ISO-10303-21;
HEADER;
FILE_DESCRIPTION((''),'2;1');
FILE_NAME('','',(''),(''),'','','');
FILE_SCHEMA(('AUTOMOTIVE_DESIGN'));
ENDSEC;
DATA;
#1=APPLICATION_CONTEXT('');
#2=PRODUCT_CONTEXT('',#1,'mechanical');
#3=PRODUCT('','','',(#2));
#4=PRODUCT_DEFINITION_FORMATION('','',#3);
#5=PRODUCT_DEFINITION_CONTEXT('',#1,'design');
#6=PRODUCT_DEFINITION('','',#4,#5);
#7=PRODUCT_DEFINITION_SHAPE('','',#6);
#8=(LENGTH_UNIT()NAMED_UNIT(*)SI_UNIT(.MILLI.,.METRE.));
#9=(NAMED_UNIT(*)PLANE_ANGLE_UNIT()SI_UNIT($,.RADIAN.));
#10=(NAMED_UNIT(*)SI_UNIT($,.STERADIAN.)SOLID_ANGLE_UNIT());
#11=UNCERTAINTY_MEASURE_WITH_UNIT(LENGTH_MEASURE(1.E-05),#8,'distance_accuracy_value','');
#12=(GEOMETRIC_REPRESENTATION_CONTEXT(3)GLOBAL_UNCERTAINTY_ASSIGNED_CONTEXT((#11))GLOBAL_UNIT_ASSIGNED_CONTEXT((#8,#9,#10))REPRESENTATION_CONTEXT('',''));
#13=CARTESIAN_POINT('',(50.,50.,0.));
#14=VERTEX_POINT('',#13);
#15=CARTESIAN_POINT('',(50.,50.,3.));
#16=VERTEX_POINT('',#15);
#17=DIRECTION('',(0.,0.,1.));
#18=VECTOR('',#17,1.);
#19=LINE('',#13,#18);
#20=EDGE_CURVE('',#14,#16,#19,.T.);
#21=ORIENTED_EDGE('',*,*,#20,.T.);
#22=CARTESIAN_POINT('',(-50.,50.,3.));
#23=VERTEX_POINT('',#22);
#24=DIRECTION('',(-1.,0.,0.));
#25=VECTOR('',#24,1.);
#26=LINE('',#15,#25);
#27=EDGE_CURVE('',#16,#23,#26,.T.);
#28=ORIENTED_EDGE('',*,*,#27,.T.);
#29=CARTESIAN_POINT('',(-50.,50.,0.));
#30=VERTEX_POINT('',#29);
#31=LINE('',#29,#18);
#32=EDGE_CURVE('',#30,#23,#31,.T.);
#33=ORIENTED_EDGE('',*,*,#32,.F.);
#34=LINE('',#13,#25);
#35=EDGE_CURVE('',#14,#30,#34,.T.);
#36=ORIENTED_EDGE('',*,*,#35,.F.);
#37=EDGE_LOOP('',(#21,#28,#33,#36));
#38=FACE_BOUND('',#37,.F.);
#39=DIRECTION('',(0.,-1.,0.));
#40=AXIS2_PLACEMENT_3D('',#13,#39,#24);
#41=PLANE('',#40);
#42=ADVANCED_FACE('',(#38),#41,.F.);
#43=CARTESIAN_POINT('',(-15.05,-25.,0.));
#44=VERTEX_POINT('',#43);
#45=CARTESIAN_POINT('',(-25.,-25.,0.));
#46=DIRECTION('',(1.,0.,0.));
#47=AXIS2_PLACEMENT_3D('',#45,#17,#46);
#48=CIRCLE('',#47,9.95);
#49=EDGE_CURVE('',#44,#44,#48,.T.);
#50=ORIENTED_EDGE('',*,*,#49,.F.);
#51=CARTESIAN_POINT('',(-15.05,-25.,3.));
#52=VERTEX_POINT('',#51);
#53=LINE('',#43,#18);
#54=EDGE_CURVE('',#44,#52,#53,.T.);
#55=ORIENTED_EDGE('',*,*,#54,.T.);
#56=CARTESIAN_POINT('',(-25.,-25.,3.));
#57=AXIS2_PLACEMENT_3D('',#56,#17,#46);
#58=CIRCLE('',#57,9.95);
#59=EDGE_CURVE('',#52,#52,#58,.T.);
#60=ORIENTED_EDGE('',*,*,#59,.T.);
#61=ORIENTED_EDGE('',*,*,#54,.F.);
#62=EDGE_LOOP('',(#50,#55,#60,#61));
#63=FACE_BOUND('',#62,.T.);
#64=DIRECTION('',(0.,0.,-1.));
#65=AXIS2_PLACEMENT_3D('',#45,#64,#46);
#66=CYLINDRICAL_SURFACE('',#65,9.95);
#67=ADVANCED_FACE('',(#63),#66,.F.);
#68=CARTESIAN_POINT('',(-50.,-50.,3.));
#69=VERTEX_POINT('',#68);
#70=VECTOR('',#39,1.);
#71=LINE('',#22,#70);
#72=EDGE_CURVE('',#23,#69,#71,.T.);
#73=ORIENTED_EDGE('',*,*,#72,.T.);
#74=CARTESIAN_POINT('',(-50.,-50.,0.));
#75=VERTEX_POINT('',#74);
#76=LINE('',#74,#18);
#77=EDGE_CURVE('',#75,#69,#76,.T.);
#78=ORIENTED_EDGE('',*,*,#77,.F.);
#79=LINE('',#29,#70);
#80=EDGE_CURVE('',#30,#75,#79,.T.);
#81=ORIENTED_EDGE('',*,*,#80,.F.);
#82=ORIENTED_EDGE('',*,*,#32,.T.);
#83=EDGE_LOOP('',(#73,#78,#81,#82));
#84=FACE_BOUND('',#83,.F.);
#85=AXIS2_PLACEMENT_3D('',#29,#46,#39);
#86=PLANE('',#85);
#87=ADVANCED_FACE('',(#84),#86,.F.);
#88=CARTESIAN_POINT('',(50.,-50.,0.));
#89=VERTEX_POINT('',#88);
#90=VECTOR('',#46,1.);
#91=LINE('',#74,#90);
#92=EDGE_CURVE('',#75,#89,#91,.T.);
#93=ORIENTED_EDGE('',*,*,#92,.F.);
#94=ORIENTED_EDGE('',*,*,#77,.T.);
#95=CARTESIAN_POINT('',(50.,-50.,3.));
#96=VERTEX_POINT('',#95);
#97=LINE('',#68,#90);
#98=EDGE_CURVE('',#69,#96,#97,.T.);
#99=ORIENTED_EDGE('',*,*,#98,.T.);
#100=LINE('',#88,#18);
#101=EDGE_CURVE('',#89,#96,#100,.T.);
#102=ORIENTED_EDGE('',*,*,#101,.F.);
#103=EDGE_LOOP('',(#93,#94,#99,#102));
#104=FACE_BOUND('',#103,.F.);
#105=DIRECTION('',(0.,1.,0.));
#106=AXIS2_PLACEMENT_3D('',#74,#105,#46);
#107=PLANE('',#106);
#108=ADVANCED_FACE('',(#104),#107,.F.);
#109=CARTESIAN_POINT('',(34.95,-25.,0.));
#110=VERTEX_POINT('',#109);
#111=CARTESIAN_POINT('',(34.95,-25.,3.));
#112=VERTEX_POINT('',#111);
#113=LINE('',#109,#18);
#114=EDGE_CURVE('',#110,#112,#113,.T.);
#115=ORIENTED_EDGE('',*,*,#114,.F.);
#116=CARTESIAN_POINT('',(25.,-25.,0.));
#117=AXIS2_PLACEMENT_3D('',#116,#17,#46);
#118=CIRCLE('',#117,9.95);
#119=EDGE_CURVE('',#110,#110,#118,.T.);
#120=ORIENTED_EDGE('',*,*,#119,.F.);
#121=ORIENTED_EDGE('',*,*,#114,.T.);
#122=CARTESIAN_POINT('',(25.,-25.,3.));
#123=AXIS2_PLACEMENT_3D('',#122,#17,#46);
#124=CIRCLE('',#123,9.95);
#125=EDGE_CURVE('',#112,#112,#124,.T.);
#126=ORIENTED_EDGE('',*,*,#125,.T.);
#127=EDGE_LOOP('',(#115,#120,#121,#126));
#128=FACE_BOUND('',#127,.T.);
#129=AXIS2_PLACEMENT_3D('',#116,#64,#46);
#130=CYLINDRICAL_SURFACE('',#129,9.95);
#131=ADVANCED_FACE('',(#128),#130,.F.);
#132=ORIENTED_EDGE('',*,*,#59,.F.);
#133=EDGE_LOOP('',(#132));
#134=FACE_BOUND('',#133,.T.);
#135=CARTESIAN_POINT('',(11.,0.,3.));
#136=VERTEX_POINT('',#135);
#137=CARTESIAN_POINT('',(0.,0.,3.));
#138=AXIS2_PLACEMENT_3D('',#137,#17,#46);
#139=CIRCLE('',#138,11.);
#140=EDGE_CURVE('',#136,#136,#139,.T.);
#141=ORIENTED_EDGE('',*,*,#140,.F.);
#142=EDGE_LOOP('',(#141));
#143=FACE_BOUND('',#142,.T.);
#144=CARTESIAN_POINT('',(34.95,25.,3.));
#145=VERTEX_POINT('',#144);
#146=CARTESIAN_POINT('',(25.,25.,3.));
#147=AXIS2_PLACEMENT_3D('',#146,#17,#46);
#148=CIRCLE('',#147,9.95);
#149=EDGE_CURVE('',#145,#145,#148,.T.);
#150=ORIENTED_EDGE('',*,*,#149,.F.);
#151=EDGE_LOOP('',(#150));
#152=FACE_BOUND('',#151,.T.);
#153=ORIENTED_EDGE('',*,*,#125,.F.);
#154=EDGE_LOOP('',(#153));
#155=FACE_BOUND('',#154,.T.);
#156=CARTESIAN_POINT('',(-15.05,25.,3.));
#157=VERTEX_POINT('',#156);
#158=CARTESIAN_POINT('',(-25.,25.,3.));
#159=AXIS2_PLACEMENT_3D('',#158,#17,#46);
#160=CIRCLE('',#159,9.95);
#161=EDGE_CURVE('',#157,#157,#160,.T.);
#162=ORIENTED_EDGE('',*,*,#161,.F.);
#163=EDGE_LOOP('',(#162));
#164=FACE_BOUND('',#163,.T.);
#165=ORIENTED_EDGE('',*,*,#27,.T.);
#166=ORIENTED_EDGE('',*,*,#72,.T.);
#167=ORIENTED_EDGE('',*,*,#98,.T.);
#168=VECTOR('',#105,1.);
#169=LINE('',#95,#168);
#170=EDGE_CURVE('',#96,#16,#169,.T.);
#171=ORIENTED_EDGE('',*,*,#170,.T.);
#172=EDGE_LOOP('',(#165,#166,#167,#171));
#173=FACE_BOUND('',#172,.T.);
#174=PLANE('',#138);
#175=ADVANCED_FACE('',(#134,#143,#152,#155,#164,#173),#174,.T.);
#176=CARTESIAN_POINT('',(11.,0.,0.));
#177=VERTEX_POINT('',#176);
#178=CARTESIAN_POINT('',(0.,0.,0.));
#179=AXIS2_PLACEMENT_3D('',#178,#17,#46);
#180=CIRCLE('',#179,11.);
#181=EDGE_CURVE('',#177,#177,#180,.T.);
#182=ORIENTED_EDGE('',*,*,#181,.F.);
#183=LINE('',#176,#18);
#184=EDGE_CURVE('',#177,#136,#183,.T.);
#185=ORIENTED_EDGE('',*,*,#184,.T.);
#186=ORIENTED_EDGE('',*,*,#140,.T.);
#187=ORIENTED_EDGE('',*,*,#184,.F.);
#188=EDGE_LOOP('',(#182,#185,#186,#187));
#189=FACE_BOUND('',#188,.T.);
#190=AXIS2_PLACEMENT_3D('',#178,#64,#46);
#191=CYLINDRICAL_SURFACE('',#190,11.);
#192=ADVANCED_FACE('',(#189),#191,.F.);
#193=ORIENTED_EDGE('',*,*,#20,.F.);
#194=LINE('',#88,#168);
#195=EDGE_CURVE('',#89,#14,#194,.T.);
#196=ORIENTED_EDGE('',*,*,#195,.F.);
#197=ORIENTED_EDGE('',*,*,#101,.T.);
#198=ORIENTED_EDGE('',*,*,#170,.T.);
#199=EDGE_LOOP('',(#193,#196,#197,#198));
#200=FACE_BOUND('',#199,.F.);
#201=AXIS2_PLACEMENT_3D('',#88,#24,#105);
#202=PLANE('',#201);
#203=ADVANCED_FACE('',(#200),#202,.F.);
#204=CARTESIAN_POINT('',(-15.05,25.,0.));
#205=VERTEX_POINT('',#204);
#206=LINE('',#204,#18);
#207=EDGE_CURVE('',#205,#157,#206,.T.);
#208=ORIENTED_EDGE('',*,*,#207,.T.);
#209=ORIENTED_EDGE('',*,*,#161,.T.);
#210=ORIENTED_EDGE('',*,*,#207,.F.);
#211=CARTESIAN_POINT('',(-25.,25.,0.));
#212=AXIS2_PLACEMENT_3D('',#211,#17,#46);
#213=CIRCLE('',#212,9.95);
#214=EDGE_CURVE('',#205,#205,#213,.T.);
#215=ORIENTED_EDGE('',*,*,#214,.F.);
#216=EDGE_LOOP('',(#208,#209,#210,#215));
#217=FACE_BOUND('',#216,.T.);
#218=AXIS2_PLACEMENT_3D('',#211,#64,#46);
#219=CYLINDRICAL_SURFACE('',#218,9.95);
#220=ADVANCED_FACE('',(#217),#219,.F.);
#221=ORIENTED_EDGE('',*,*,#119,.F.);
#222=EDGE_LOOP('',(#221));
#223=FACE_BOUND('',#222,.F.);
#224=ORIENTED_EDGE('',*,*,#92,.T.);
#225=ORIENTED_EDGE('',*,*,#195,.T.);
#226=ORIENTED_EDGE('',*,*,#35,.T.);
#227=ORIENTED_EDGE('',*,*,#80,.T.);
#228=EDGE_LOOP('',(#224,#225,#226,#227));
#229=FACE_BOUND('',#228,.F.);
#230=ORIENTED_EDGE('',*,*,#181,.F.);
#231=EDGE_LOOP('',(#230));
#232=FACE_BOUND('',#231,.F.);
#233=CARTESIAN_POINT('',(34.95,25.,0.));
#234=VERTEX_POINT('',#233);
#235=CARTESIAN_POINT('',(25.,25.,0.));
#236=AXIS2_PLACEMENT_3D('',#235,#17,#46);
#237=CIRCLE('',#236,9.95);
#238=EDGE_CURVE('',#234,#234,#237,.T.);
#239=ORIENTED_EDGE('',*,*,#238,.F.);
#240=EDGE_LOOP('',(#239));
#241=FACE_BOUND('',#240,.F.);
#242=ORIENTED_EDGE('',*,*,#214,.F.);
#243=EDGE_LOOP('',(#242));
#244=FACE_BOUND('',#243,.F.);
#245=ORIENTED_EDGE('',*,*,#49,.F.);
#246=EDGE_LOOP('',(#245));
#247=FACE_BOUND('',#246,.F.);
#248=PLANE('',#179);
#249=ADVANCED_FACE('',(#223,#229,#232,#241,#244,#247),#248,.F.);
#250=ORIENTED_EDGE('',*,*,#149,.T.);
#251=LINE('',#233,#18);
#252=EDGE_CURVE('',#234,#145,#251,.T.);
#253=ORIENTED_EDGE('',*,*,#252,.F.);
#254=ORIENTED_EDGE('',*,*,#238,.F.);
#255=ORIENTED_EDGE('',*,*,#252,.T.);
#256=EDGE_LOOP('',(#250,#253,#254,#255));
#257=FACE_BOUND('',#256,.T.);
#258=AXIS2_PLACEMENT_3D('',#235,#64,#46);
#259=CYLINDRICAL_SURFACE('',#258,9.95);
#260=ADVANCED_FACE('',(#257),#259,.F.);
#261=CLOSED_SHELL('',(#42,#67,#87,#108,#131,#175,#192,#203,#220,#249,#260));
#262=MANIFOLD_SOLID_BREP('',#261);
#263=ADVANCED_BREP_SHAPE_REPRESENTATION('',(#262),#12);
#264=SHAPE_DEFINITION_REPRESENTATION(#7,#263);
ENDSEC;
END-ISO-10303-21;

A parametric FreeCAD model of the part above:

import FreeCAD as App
import Part
import Sketcher
Q = App.Units.Quantity

doc = App.newDocument("Part")
body = doc.addObject("PartDesign::Body", "Body")

# Sketch on XY plane
sketch1 = body.newObject("Sketcher::SketchObject", "Sketch")
sketch1.AttachmentSupport = (doc.getObject("XY_Plane"), [""])
sketch1.MapMode = "FlatFace"
sketch1.addGeometry(Part.LineSegment(App.Vector(50, 50, 0), App.Vector(-50, 50, 0)), False)
sketch1.addGeometry(Part.LineSegment(App.Vector(-50, 50, 0), App.Vector(-50, -50, 0)), False)
sketch1.addGeometry(Part.LineSegment(App.Vector(-50, -50, 0), App.Vector(50, -50, 0)), False)
sketch1.addGeometry(Part.LineSegment(App.Vector(50, -50, 0), App.Vector(50, 50, 0)), False)
sketch1.addGeometry(Part.Circle(App.Vector(-25, -25, 0), App.Vector(0, 0, 1), 10), False)
sketch1.addGeometry(Part.Circle(App.Vector(25, -25, 0), App.Vector(0, 0, 1), 10), False)
sketch1.addGeometry(Part.Circle(App.Vector(-25, 25, 0), App.Vector(0, 0, 1), 10), False)
sketch1.addGeometry(Part.Circle(App.Vector(0, 0, 0), App.Vector(0, 0, 1), 11), False)
sketch1.addGeometry(Part.Circle(App.Vector(25, 25, 0), App.Vector(0, 0, 1), 10), False)
sketch1.addConstraint(Sketcher.Constraint("Coincident", 0, 2, 1, 1))
sketch1.addConstraint(Sketcher.Constraint("Coincident", 1, 2, 2, 1))
sketch1.addConstraint(Sketcher.Constraint("Coincident", 2, 2, 3, 1))
sketch1.addConstraint(Sketcher.Constraint("Coincident", 3, 2, 0, 1))
sketch1.addConstraint(Sketcher.Constraint("Horizontal", 0))
sketch1.addConstraint(Sketcher.Constraint("Vertical", 1))
sketch1.addConstraint(Sketcher.Constraint("Horizontal", 2))
sketch1.addConstraint(Sketcher.Constraint("Vertical", 3))
sketch1.addConstraint(Sketcher.Constraint("Coincident", 7, 3, -1, 1))
sketch1.addConstraint(Sketcher.Constraint("Equal", 4, 5))
sketch1.addConstraint(Sketcher.Constraint("Equal", 5, 6))
sketch1.addConstraint(Sketcher.Constraint("Equal", 6, 8))
sketch1.addConstraint(Sketcher.Constraint("Symmetric", 5, 3, 6, 3, -1, 1))
sketch1.addConstraint(Sketcher.Constraint("Symmetric", 4, 3, 8, 3, -1, 1))
sketch1.addConstraint(Sketcher.Constraint("Symmetric", 0, 2, 2, 2, -1, 1))
sketch1.addConstraint(Sketcher.Constraint("Symmetric", 4, 3, 5, 3, -2))
sketch1.addConstraint(Sketcher.Constraint("Equal", 2, 1))
sketch1.addConstraint(Sketcher.Constraint("Diameter", 7, Q("22 mm")))
sketch1.addConstraint(Sketcher.Constraint("Diameter", 4, Q("19.9 mm")))
sketch1.addConstraint(Sketcher.Constraint("DistanceX", 0, 2, 0, 1, Q("100 mm")))
sketch1.addConstraint(Sketcher.Constraint("DistanceX", 4, 3, -1, 1, Q("25 mm")))
sketch1.addConstraint(Sketcher.Constraint("DistanceY", 4, 3, -1, 1, Q("25 mm")))
pad1 = body.newObject("PartDesign::Pad", "Pad")
pad1.Profile = sketch1
pad1.Length = 3

doc.recompute()
